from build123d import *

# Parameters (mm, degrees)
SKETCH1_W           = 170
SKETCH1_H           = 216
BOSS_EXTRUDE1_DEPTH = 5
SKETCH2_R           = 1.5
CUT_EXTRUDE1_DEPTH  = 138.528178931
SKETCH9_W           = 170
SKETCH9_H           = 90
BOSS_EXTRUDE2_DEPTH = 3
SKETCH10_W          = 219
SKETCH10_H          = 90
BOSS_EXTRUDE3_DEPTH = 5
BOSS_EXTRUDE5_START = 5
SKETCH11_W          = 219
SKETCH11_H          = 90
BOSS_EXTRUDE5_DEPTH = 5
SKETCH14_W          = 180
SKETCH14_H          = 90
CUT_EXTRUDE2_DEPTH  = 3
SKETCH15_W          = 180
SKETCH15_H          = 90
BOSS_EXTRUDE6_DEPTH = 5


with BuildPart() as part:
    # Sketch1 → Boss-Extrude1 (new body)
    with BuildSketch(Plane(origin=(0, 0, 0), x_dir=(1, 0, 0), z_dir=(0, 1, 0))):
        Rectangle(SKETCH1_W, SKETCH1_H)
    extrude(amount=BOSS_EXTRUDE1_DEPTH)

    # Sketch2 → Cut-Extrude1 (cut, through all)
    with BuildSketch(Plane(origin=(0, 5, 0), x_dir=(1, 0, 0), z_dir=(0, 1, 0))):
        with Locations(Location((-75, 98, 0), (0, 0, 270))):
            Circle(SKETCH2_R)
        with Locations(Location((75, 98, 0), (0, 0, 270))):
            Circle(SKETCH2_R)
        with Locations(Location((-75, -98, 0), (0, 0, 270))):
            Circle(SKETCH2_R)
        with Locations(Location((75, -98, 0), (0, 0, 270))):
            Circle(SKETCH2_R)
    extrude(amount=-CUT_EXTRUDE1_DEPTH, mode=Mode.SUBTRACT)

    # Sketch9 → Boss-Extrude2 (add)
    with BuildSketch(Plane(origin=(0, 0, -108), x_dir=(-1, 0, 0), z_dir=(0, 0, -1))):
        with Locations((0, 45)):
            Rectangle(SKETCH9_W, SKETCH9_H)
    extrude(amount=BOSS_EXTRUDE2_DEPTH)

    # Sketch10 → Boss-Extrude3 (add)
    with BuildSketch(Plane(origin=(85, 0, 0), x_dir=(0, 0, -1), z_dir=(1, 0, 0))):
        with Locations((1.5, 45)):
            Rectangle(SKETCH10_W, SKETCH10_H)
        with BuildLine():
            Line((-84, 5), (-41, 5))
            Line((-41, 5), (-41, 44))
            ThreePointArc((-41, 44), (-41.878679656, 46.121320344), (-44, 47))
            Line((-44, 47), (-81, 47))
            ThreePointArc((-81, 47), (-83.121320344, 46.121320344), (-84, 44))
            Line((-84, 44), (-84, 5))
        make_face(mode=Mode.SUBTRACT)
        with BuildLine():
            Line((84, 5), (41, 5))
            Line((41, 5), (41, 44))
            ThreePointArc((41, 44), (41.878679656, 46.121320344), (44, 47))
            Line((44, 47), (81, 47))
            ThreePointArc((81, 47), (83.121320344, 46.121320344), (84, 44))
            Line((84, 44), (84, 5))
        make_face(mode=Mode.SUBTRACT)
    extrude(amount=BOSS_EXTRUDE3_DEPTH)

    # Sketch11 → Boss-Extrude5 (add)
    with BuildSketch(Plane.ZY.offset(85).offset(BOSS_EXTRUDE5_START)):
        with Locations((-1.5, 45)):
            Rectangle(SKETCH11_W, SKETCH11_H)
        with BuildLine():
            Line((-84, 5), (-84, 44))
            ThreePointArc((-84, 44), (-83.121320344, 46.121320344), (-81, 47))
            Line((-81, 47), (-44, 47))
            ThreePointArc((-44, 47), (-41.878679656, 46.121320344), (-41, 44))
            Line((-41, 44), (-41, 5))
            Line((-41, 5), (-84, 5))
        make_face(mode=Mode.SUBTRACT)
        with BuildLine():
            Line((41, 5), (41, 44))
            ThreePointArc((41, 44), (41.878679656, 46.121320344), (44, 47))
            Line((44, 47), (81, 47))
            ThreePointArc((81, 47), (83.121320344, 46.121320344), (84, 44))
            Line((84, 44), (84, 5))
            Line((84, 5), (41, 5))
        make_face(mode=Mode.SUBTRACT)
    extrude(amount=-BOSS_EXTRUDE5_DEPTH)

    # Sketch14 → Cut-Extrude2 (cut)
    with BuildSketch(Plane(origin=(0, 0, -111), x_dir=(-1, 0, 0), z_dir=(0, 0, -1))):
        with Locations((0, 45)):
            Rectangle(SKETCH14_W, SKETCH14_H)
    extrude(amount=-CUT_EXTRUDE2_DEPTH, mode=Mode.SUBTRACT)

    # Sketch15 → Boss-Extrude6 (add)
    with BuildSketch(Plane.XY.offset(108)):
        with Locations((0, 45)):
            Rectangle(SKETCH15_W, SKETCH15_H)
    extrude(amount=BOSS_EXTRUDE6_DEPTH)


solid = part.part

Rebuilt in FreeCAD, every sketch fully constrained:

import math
import FreeCAD as App
import Part
import Sketcher

V = App.Vector

doc = App.newDocument("Part")
params = doc.addObject("Spreadsheet::Sheet", "Params")
for row, (alias, value) in enumerate([
    ("sketch1_width", "170 mm"),
    ("sketch1_height", "216 mm"),
    ("pad1_length", "5 mm"),
    ("sketch2_diameter", "3 mm"),
    ("sketch3_width", "170 mm"),
    ("sketch3_height", "90 mm"),
    ("pad2_length", "3 mm"),
    ("sketch4_radius", "3 mm"),
    ("sketch4_width", "90 mm"),
    ("sketch4_width2", "39 mm"),
    ("sketch4_height", "219 mm"),
    ("sketch4_height2", "43 mm"),
    ("pad3_length", "5 mm"),
    ("sketch5_radius", "3 mm"),
    ("sketch5_width", "90 mm"),
    ("sketch5_width2", "39 mm"),
    ("sketch5_height", "219 mm"),
    ("sketch5_height2", "43 mm"),
    ("pad4_length", "5 mm"),
    ("sketch6_width", "180 mm"),
    ("sketch6_height", "90 mm"),
    ("pocket2_length", "3 mm"),
    ("sketch7_width", "180 mm"),
    ("sketch7_height", "90 mm"),
    ("pad5_length", "5 mm"),
], start=1):
    params.set(f"A{row}", alias)
    params.set(f"B{row}", "=" + value)
    params.setAlias(f"B{row}", alias)

body = doc.addObject("PartDesign::Body", "Body")

# Sketch on XZ plane
sketch1 = body.newObject("Sketcher::SketchObject", "Sketch")
sketch1.AttachmentSupport = (doc.getObject("XZ_Plane"), [""])
sketch1.MapMode = "FlatFace"
sketch1.addGeometry([
    Part.LineSegment(V(-85, -108, 0), V(-85, 108, 0)),
    Part.LineSegment(V(-85, 108, 0), V(85, 108, 0)),
    Part.LineSegment(V(85, 108, 0), V(85, -108, 0)),
    Part.LineSegment(V(85, -108, 0), V(-85, -108, 0)),
], False)
sketch1.addConstraint([
    Sketcher.Constraint("Coincident", 0, 2, 1, 1),
    Sketcher.Constraint("Coincident", 1, 2, 2, 1),
    Sketcher.Constraint("Coincident", 2, 2, 3, 1),
    Sketcher.Constraint("Coincident", 3, 2, 0, 1),
    Sketcher.Constraint("Vertical", 0),
    Sketcher.Constraint("Horizontal", 1),
    Sketcher.Constraint("Vertical", 2),
    Sketcher.Constraint("Horizontal", 3),
    Sketcher.Constraint("Symmetric", 0, 2, 2, 2, -1, 1),
    Sketcher.Constraint("DistanceX", 1, 1, 1, 2, 170.0),
    Sketcher.Constraint("DistanceY", 0, 1, 0, 2, 216.0),
])
sketch1.setExpression("Constraints[9]", "Params.sketch1_width")
sketch1.setExpression("Constraints[10]", "Params.sketch1_height")
pad1 = body.newObject("PartDesign::Pad", "Pad")
pad1.Profile = sketch1
pad1.setExpression("Length", "Params.pad1_length")
pad1.Reversed = True

# Sketch on XZ plane
sketch2 = body.newObject("Sketcher::SketchObject", "Sketch001")
sketch2.AttachmentSupport = (doc.getObject("XZ_Plane"), [""])
sketch2.MapMode = "FlatFace"
sketch2.AttachmentOffset = App.Placement(V(0, 0, -5), App.Rotation())
sketch2.addGeometry([
    Part.Circle(V(-75, -98, 0), V(0, 0, 1), 1.5),
    Part.Circle(V(75, -98, 0), V(0, 0, 1), 1.5),
    Part.Circle(V(-75, 98, 0), V(0, 0, 1), 1.5),
    Part.Circle(V(75, 98, 0), V(0, 0, 1), 1.5),
], False)
sketch2.addConstraint([
    Sketcher.Constraint("Equal", 0, 1),
    Sketcher.Constraint("Equal", 1, 2),
    Sketcher.Constraint("Equal", 2, 3),
    Sketcher.Constraint("Symmetric", 1, 3, 2, 3, -1, 1),
    Sketcher.Constraint("Symmetric", 0, 3, 3, 3, -1, 1),
    Sketcher.Constraint("Symmetric", 0, 3, 1, 3, -2),
    Sketcher.Constraint("Diameter", 0, 3.0),
    Sketcher.Constraint("DistanceX", 0, 3, -1, 1, 75.0),
    Sketcher.Constraint("DistanceY", 0, 3, -1, 1, 98.0),
])
sketch2.setExpression("Constraints[6]", "Params.sketch2_diameter")
pocket1 = body.newObject("PartDesign::Pocket", "Pocket")
pocket1.Profile = sketch2
pocket1.Type = "ThroughAll"
pocket1.Reversed = True

# Sketch on XY plane
sketch3 = body.newObject("Sketcher::SketchObject", "Sketch002")
sketch3.AttachmentSupport = (doc.getObject("XY_Plane"), [""])
sketch3.MapMode = "FlatFace"
sketch3.AttachmentOffset = App.Placement(V(0, 0, -108), App.Rotation())
sketch3.addGeometry([
    Part.LineSegment(V(85, 90, 0), V(85, 0, 0)),
    Part.LineSegment(V(85, 0, 0), V(-85, 0, 0)),
    Part.LineSegment(V(-85, 0, 0), V(-85, 90, 0)),
    Part.LineSegment(V(-85, 90, 0), V(85, 90, 0)),
], False)
sketch3.addConstraint([
    Sketcher.Constraint("Coincident", 0, 2, 1, 1),
    Sketcher.Constraint("Coincident", 1, 2, 2, 1),
    Sketcher.Constraint("Coincident", 2, 2, 3, 1),
    Sketcher.Constraint("Coincident", 3, 2, 0, 1),
    Sketcher.Constraint("Vertical", 0),
    Sketcher.Constraint("Horizontal", 1),
    Sketcher.Constraint("Vertical", 2),
    Sketcher.Constraint("Horizontal", 3),
    Sketcher.Constraint("Symmetric", 0, 2, 1, 2, -1, 1),
    Sketcher.Constraint("DistanceX", 1, 2, 1, 1, 170.0),
    Sketcher.Constraint("DistanceY", 0, 2, 0, 1, 90.0),
])
sketch3.setExpression("Constraints[9]", "Params.sketch3_width")
sketch3.setExpression("Constraints[10]", "Params.sketch3_height")
pad2 = body.newObject("PartDesign::Pad", "Pad001")
pad2.Profile = sketch3
pad2.setExpression("Length", "Params.pad2_length")
pad2.Reversed = True

# Sketch on YZ plane
sketch4 = body.newObject("Sketcher::SketchObject", "Sketch003")
sketch4.AttachmentSupport = (doc.getObject("YZ_Plane"), [""])
sketch4.MapMode = "FlatFace"
sketch4.AttachmentOffset = App.Placement(V(0, 0, 85), App.Rotation())
sketch4.addGeometry([
    Part.LineSegment(V(90, 108, 0), V(0, 108, 0)),  # 0
    Part.LineSegment(V(0, 108, 0), V(0, -111, 0)),  # 1
    Part.LineSegment(V(0, -111, 0), V(90, -111, 0)),  # 2
    Part.LineSegment(V(90, -111, 0), V(90, 108, 0)),  # 3
    Part.LineSegment(V(5, 41, 0), V(5, 84, 0)),  # 4
    Part.LineSegment(V(5, 84, 0), V(44, 84, 0)),  # 5
    Part.ArcOfCircle(Part.Circle(V(44, 81, 0), V(0, 0, 1), 3), math.radians(0), math.radians(90)),  # 6
    Part.LineSegment(V(47, 81, 0), V(47, 44, 0)),  # 7
    Part.ArcOfCircle(Part.Circle(V(44, 44, 0), V(0, 0, 1), 3), math.radians(-90), math.radians(0)),  # 8
    Part.LineSegment(V(44, 41, 0), V(5, 41, 0)),  # 9
    Part.LineSegment(V(44, -84, 0), V(5, -84, 0)),  # 10
    Part.LineSegment(V(5, -84, 0), V(5, -41, 0)),  # 11
    Part.LineSegment(V(5, -41, 0), V(44, -41, 0)),  # 12
    Part.ArcOfCircle(Part.Circle(V(44, -44, 0), V(0, 0, 1), 3), math.radians(0), math.radians(90)),  # 13
    Part.LineSegment(V(47, -44, 0), V(47, -81, 0)),  # 14
    Part.ArcOfCircle(Part.Circle(V(44, -81, 0), V(0, 0, 1), 3), math.radians(-90), math.radians(0)),  # 15
], False)
sketch4.addConstraint([
    Sketcher.Constraint("Coincident", 0, 2, 1, 1),
    Sketcher.Constraint("Coincident", 1, 2, 2, 1),
    Sketcher.Constraint("Coincident", 2, 2, 3, 1),
    Sketcher.Constraint("Coincident", 3, 2, 0, 1),
    Sketcher.Constraint("Coincident", 4, 2, 5, 1),
    Sketcher.Constraint("Tangent", 5, 2, 6, 2),
    Sketcher.Constraint("Tangent", 6, 1, 7, 1),
    Sketcher.Constraint("Tangent", 7, 2, 8, 2),
    Sketcher.Constraint("Tangent", 8, 1, 9, 1),
    Sketcher.Constraint("Coincident", 9, 2, 4, 1),
    Sketcher.Constraint("Coincident", 10, 2, 11, 1),
    Sketcher.Constraint("Coincident", 11, 2, 12, 1),
    Sketcher.Constraint("Tangent", 12, 2, 13, 2),
    Sketcher.Constraint("Tangent", 13, 1, 14, 1),
    Sketcher.Constraint("Tangent", 14, 2, 15, 2),
    Sketcher.Constraint("Tangent", 15, 1, 10, 1),
    Sketcher.Constraint("Horizontal", 0),
    Sketcher.Constraint("Vertical", 1),
    Sketcher.Constraint("Horizontal", 2),
    Sketcher.Constraint("Vertical", 3),
    Sketcher.Constraint("Vertical", 4),
    Sketcher.Constraint("Horizontal", 5),
    Sketcher.Constraint("Vertical", 7),
    Sketcher.Constraint("Horizontal", 9),
    Sketcher.Constraint("Horizontal", 10),
    Sketcher.Constraint("Vertical", 11),
    Sketcher.Constraint("Horizontal", 12),
    Sketcher.Constraint("Vertical", 14),
    Sketcher.Constraint("Equal", 6, 8),
    Sketcher.Constraint("Equal", 8, 13),
    Sketcher.Constraint("Equal", 13, 15),
    Sketcher.Constraint("Symmetric", 8, 3, 13, 3, -1),
    Sketcher.Constraint("Symmetric", 4, 2, 10, 2, -1),
    Sketcher.Constraint("PointOnObject", 0, 2, -2),
    Sketcher.Constraint("Radius", 6, 3.0),
    Sketcher.Constraint("DistanceX", 0, 2, 0, 1, 90.0),
    Sketcher.Constraint("DistanceX", 5, 1, 5, 2, 39.0),
    Sketcher.Constraint("DistanceY", 1, 2, 1, 1, 219.0),
    Sketcher.Constraint("DistanceY", 4, 1, 4, 2, 43.0),
    Sketcher.Constraint("DistanceX", -1, 1, 6, 3, 44.0),
    Sketcher.Constraint("DistanceY", -1, 1, 6, 3, 81.0),
    Sketcher.Constraint("DistanceY", -1, 1, 0, 2, 108.0),
])
sketch4.setExpression("Constraints[34]", "Params.sketch4_radius")
sketch4.setExpression("Constraints[35]", "Params.sketch4_width")
sketch4.setExpression("Constraints[36]", "Params.sketch4_width2")
sketch4.setExpression("Constraints[37]", "Params.sketch4_height")
sketch4.setExpression("Constraints[38]", "Params.sketch4_height2")
pad3 = body.newObject("PartDesign::Pad", "Pad002")
pad3.Profile = sketch4
pad3.setExpression("Length", "Params.pad3_length")

# Sketch on YZ plane
sketch5 = body.newObject("Sketcher::SketchObject", "Sketch004")
sketch5.AttachmentSupport = (doc.getObject("YZ_Plane"), [""])
sketch5.MapMode = "FlatFace"
sketch5.AttachmentOffset = App.Placement(V(0, 0, -90), App.Rotation())
sketch5.addGeometry([
    Part.LineSegment(V(90, -111, 0), V(0, -111, 0)),  # 0
    Part.LineSegment(V(0, -111, 0), V(0, 108, 0)),  # 1
    Part.LineSegment(V(0, 108, 0), V(90, 108, 0)),  # 2
    Part.LineSegment(V(90, 108, 0), V(90, -111, 0)),  # 3
    Part.LineSegment(V(5, -41, 0), V(5, -84, 0)),  # 4
    Part.LineSegment(V(5, -84, 0), V(44, -84, 0)),  # 5
    Part.ArcOfCircle(Part.Circle(V(44, -81, 0), V(0, 0, 1), 3), math.radians(-90), math.radians(0)),  # 6
    Part.LineSegment(V(47, -81, 0), V(47, -44, 0)),  # 7
    Part.ArcOfCircle(Part.Circle(V(44, -44, 0), V(0, 0, 1), 3), math.radians(0), math.radians(90)),  # 8
    Part.LineSegment(V(44, -41, 0), V(5, -41, 0)),  # 9
    Part.LineSegment(V(5, 84, 0), V(5, 41, 0)),  # 10
    Part.LineSegment(V(5, 41, 0), V(44, 41, 0)),  # 11
    Part.ArcOfCircle(Part.Circle(V(44, 44, 0), V(0, 0, 1), 3), math.radians(-90), math.radians(0)),  # 12
    Part.LineSegment(V(47, 44, 0), V(47, 81, 0)),  # 13
    Part.ArcOfCircle(Part.Circle(V(44, 81, 0), V(0, 0, 1), 3), math.radians(0), math.radians(90)),  # 14
    Part.LineSegment(V(44, 84, 0), V(5, 84, 0)),  # 15
], False)
sketch5.addConstraint([
    Sketcher.Constraint("Coincident", 0, 2, 1, 1),
    Sketcher.Constraint("Coincident", 1, 2, 2, 1),
    Sketcher.Constraint("Coincident", 2, 2, 3, 1),
    Sketcher.Constraint("Coincident", 3, 2, 0, 1),
    Sketcher.Constraint("Coincident", 4, 2, 5, 1),
    Sketcher.Constraint("Tangent", 5, 2, 6, 1),
    Sketcher.Constraint("Tangent", 6, 2, 7, 1),
    Sketcher.Constraint("Tangent", 7, 2, 8, 1),
    Sketcher.Constraint("Tangent", 8, 2, 9, 1),
    Sketcher.Constraint("Coincident", 9, 2, 4, 1),
    Sketcher.Constraint("Coincident", 10, 2, 11, 1),
    Sketcher.Constraint("Tangent", 11, 2, 12, 1),
    Sketcher.Constraint("Tangent", 12, 2, 13, 1),
    Sketcher.Constraint("Tangent", 13, 2, 14, 1),
    Sketcher.Constraint("Tangent", 14, 2, 15, 1),
    Sketcher.Constraint("Coincident", 15, 2, 10, 1),
    Sketcher.Constraint("Horizontal", 0),
    Sketcher.Constraint("Vertical", 1),
    Sketcher.Constraint("Horizontal", 2),
    Sketcher.Constraint("Vertical", 3),
    Sketcher.Constraint("Vertical", 4),
    Sketcher.Constraint("Horizontal", 5),
    Sketcher.Constraint("Vertical", 7),
    Sketcher.Constraint("Horizontal", 9),
    Sketcher.Constraint("Vertical", 10),
    Sketcher.Constraint("Horizontal", 11),
    Sketcher.Constraint("Vertical", 13),
    Sketcher.Constraint("Horizontal", 15),
    Sketcher.Constraint("Equal", 6, 8),
    Sketcher.Constraint("Equal", 8, 12),
    Sketcher.Constraint("Equal", 12, 14),
    Sketcher.Constraint("Symmetric", 8, 3, 12, 3, -1),
    Sketcher.Constraint("Symmetric", 4, 2, 15, 2, -1),
    Sketcher.Constraint("PointOnObject", 0, 2, -2),
    Sketcher.Constraint("Radius", 6, 3.0),
    Sketcher.Constraint("DistanceX", 0, 2, 0, 1, 90.0),
    Sketcher.Constraint("DistanceX", 5, 1, 5, 2, 39.0),
    Sketcher.Constraint("DistanceY", 1, 1, 1, 2, 219.0),
    Sketcher.Constraint("DistanceY", 4, 2, 4, 1, 43.0),
    Sketcher.Constraint("DistanceX", -1, 1, 6, 3, 44.0),
    Sketcher.Constraint("DistanceY", 6, 3, -1, 1, 81.0),
    Sketcher.Constraint("DistanceY", 0, 2, -1, 1, 111.0),
])
sketch5.setExpression("Constraints[34]", "Params.sketch5_radius")
sketch5.setExpression("Constraints[35]", "Params.sketch5_width")
sketch5.setExpression("Constraints[36]", "Params.sketch5_width2")
sketch5.setExpression("Constraints[37]", "Params.sketch5_height")
sketch5.setExpression("Constraints[38]", "Params.sketch5_height2")
pad4 = body.newObject("PartDesign::Pad", "Pad003")
pad4.Profile = sketch5
pad4.setExpression("Length", "Params.pad4_length")

# Sketch on XY plane
sketch6 = body.newObject("Sketcher::SketchObject", "Sketch005")
sketch6.AttachmentSupport = (doc.getObject("XY_Plane"), [""])
sketch6.MapMode = "FlatFace"
sketch6.AttachmentOffset = App.Placement(V(0, 0, -111), App.Rotation())
sketch6.addGeometry([
    Part.LineSegment(V(90, 90, 0), V(90, 0, 0)),
    Part.LineSegment(V(90, 0, 0), V(-90, 0, 0)),
    Part.LineSegment(V(-90, 0, 0), V(-90, 90, 0)),
    Part.LineSegment(V(-90, 90, 0), V(90, 90, 0)),
], False)
sketch6.addConstraint([
    Sketcher.Constraint("Coincident", 0, 2, 1, 1),
    Sketcher.Constraint("Coincident", 1, 2, 2, 1),
    Sketcher.Constraint("Coincident", 2, 2, 3, 1),
    Sketcher.Constraint("Coincident", 3, 2, 0, 1),
    Sketcher.Constraint("Vertical", 0),
    Sketcher.Constraint("Horizontal", 1),
    Sketcher.Constraint("Vertical", 2),
    Sketcher.Constraint("Horizontal", 3),
    Sketcher.Constraint("Symmetric", 0, 2, 1, 2, -1, 1),
    Sketcher.Constraint("DistanceX", 1, 2, 1, 1, 180.0),
    Sketcher.Constraint("DistanceY", 0, 2, 0, 1, 90.0),
])
sketch6.setExpression("Constraints[9]", "Params.sketch6_width")
sketch6.setExpression("Constraints[10]", "Params.sketch6_height")
pocket2 = body.newObject("PartDesign::Pocket", "Pocket001")
pocket2.Profile = sketch6
pocket2.setExpression("Length", "Params.pocket2_length")
pocket2.Reversed = True

# Sketch on XY plane
sketch7 = body.newObject("Sketcher::SketchObject", "Sketch006")
sketch7.AttachmentSupport = (doc.getObject("XY_Plane"), [""])
sketch7.MapMode = "FlatFace"
sketch7.AttachmentOffset = App.Placement(V(0, 0, 108), App.Rotation())
sketch7.addGeometry([
    Part.LineSegment(V(-90, 90, 0), V(-90, 0, 0)),
    Part.LineSegment(V(-90, 0, 0), V(90, 0, 0)),
    Part.LineSegment(V(90, 0, 0), V(90, 90, 0)),
    Part.LineSegment(V(90, 90, 0), V(-90, 90, 0)),
], False)
sketch7.addConstraint([
    Sketcher.Constraint("Coincident", 0, 2, 1, 1),
    Sketcher.Constraint("Coincident", 1, 2, 2, 1),
    Sketcher.Constraint("Coincident", 2, 2, 3, 1),
    Sketcher.Constraint("Coincident", 3, 2, 0, 1),
    Sketcher.Constraint("Vertical", 0),
    Sketcher.Constraint("Horizontal", 1),
    Sketcher.Constraint("Vertical", 2),
    Sketcher.Constraint("Horizontal", 3),
    Sketcher.Constraint("Symmetric", 0, 2, 1, 2, -1, 1),
    Sketcher.Constraint("DistanceX", 1, 1, 1, 2, 180.0),
    Sketcher.Constraint("DistanceY", 0, 2, 0, 1, 90.0),
])
sketch7.setExpression("Constraints[9]", "Params.sketch7_width")
sketch7.setExpression("Constraints[10]", "Params.sketch7_height")
pad5 = body.newObject("PartDesign::Pad", "Pad004")
pad5.Profile = sketch7
pad5.setExpression("Length", "Params.pad5_length")

doc.recompute()
